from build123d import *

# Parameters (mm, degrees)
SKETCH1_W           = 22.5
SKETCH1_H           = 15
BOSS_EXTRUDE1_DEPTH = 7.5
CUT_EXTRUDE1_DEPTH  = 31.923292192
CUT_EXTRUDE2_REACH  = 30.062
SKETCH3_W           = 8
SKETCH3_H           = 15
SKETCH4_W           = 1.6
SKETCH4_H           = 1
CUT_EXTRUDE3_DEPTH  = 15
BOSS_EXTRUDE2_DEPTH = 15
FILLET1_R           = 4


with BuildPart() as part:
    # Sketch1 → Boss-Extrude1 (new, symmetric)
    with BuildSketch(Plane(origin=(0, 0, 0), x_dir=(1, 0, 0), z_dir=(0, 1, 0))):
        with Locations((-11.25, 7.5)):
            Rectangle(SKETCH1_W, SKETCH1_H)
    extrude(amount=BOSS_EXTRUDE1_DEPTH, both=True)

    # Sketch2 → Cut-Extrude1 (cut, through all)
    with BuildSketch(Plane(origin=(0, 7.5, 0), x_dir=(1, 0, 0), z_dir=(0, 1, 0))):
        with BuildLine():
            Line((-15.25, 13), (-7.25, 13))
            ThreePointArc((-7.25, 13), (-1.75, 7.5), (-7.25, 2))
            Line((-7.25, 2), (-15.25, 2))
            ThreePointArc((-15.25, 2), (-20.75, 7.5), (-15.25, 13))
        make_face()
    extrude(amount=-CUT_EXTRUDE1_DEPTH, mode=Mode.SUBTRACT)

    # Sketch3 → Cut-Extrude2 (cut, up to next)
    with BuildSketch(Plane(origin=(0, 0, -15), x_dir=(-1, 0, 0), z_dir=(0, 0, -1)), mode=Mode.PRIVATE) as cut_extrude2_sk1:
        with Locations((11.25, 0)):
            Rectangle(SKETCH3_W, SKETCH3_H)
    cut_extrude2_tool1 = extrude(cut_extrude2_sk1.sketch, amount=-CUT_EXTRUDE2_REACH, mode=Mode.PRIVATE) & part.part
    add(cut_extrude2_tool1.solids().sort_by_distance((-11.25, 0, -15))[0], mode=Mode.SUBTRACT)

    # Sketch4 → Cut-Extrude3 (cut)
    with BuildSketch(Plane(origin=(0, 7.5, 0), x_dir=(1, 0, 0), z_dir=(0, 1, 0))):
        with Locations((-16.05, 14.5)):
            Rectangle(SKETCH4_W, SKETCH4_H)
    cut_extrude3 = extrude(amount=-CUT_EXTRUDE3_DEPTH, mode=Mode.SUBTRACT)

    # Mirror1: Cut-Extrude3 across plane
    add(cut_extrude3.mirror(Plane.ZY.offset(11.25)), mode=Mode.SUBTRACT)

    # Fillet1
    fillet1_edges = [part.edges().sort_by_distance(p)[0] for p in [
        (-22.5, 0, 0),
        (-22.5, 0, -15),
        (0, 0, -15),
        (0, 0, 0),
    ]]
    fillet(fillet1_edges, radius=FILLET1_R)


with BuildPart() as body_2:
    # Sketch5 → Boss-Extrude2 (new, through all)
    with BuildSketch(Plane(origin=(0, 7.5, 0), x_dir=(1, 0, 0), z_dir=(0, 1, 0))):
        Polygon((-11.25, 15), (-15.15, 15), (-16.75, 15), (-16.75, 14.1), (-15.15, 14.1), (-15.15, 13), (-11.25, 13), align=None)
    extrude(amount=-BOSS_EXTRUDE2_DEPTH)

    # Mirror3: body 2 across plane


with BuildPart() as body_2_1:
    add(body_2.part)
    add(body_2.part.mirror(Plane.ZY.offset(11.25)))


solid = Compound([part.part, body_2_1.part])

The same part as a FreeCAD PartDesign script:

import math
import FreeCAD as App
import Part
import Sketcher

V = App.Vector


def edges_at(feature, points):
    """Names of the edges that pass closest to the given points."""
    edges = feature.Shape.Edges
    near = lambda p: min(range(len(edges)), key=lambda i: edges[i].distToShape(Part.Vertex(*p))[0])
    return sorted({f"Edge{near(p) + 1}" for p in points})

doc = App.newDocument("Part")
body = doc.addObject("PartDesign::Body", "Body")

sketch1 = body.newObject("Sketcher::SketchObject", "Sketch")
sketch1.AttachmentSupport = (doc.getObject("XZ_Plane"), [""])
sketch1.MapMode = "FlatFace"
sketch1.addGeometry([
    Part.LineSegment(V(-22, -15, 0), V(-22, 0, 0)),
    Part.LineSegment(V(-22, 0, 0), V(0, 0, 0)),
    Part.LineSegment(V(0, 0, 0), V(0, -15, 0)),
    Part.LineSegment(V(0, -15, 0), V(-22, -15, 0)),
], False)
sketch1.addConstraint([
    Sketcher.Constraint("Coincident", 0, 2, 1, 1),
    Sketcher.Constraint("Coincident", 1, 2, 2, 1),
    Sketcher.Constraint("Coincident", 2, 2, 3, 1),
    Sketcher.Constraint("Coincident", 3, 2, 0, 1),
    Sketcher.Constraint("Vertical", 0),
    Sketcher.Constraint("Horizontal", 1),
    Sketcher.Constraint("Vertical", 2),
    Sketcher.Constraint("Horizontal", 3),
    Sketcher.Constraint("Coincident", 1, 2, -1, 1),
    Sketcher.Constraint("DistanceY", 0, 1, 0, 2, 15.0),
    Sketcher.Constraint("DistanceX", 1, 1, 1, 2, 22.5),
])
pad1 = body.newObject("PartDesign::Pad", "Pad")
pad1.Profile = sketch1
pad1.Length = 15
pad1.Midplane = True

sketch2 = body.newObject("Sketcher::SketchObject", "Sketch001")
sketch2.AttachmentSupport = (doc.getObject("XZ_Plane"), [""])
sketch2.MapMode = "FlatFace"
sketch2.AttachmentOffset = App.Placement(V(0, 0, -7.5), App.Rotation())
sketch2.addGeometry([
    Part.LineSegment(V(-7, -13, 0), V(-15, -13, 0)),
    Part.ArcOfCircle(Part.Circle(V(-15, -8, 0), V(0, 0, 1), 6), math.radians(90), math.radians(270)),
    Part.LineSegment(V(-15, -2, 0), V(-7, -2, 0)),
    Part.ArcOfCircle(Part.Circle(V(-7, -8, 0), V(0, 0, 1), 6), math.radians(-90), math.radians(90)),
], False)
sketch2.addConstraint([
    Sketcher.Constraint("Tangent", 0, 2, 1, 2),
    Sketcher.Constraint("Tangent", 1, 1, 2, 1),
    Sketcher.Constraint("Tangent", 2, 2, 3, 2),
    Sketcher.Constraint("Tangent", 3, 1, 0, 1),
    Sketcher.Constraint("Horizontal", 0),
    Sketcher.Constraint("Horizontal", 2),
    Sketcher.Constraint("Radius", 1, 5.5),
    Sketcher.Constraint("DistanceX", 0, 2, 0, 1, 8.0),
    Sketcher.Constraint("DistanceY", 0, 2, -1, 1, 13.0),
    Sketcher.Constraint("DistanceX", 1, 3, -1, 1, 15.25),
])
pocket1 = body.newObject("PartDesign::Pocket", "Pocket")
pocket1.Profile = sketch2
pocket1.Type = "ThroughAll"
pocket1.Reversed = True

sketch3 = body.newObject("Sketcher::SketchObject", "Sketch002")
sketch3.AttachmentSupport = (doc.getObject("XY_Plane"), [""])
sketch3.MapMode = "FlatFace"
sketch3.AttachmentOffset = App.Placement(V(0, 0, -15), App.Rotation())
sketch3.addGeometry([
    Part.LineSegment(V(-7, 8, 0), V(-7, -8, 0)),
    Part.LineSegment(V(-7, -8, 0), V(-15, -8, 0)),
    Part.LineSegment(V(-15, -8, 0), V(-15, 8, 0)),
    Part.LineSegment(V(-15, 8, 0), V(-7, 8, 0)),
], False)
sketch3.addConstraint([
    Sketcher.Constraint("Coincident", 0, 2, 1, 1),
    Sketcher.Constraint("Coincident", 1, 2, 2, 1),
    Sketcher.Constraint("Coincident", 2, 2, 3, 1),
    Sketcher.Constraint("Coincident", 3, 2, 0, 1),
    Sketcher.Constraint("Vertical", 0),
    Sketcher.Constraint("Horizontal", 1),
    Sketcher.Constraint("Vertical", 2),
    Sketcher.Constraint("Horizontal", 3),
    Sketcher.Constraint("DistanceX", 1, 2, 1, 1, 8.0),
    Sketcher.Constraint("DistanceY", 0, 2, 0, 1, 15.0),
    Sketcher.Constraint("DistanceY", 0, 2, -1, 1, 7.5),
    Sketcher.Constraint("DistanceX", 0, 2, -1, 1, 7.25),
])
pocket2 = body.newObject("PartDesign::Pocket", "Pocket001")
pocket2.Profile = sketch3
pocket2.Type = "UpToFirst"
pocket2.Reversed = True

sketch4 = body.newObject("Sketcher::SketchObject", "Sketch003")
sketch4.AttachmentSupport = (doc.getObject("XZ_Plane"), [""])
sketch4.MapMode = "FlatFace"
sketch4.AttachmentOffset = App.Placement(V(0, 0, -7.5), App.Rotation())
sketch4.addGeometry([
    Part.LineSegment(V(-16.9, -15, 0), V(-16.9, -14, 0)),
    Part.LineSegment(V(-16.9, -14, 0), V(-15.2, -14, 0)),
    Part.LineSegment(V(-15.2, -14, 0), V(-15.2, -15, 0)),
    Part.LineSegment(V(-15.2, -15, 0), V(-16.9, -15, 0)),
], False)
sketch4.addConstraint([
    Sketcher.Constraint("Coincident", 0, 2, 1, 1),
    Sketcher.Constraint("Coincident", 1, 2, 2, 1),
    Sketcher.Constraint("Coincident", 2, 2, 3, 1),
    Sketcher.Constraint("Coincident", 3, 2, 0, 1),
    Sketcher.Constraint("Vertical", 0),
    Sketcher.Constraint("Horizontal", 1),
    Sketcher.Constraint("Vertical", 2),
    Sketcher.Constraint("Horizontal", 3),
    Sketcher.Constraint("DistanceY", 0, 1, 0, 2, 1.0),
    Sketcher.Constraint("DistanceX", 1, 1, 1, 2, 1.6),
    Sketcher.Constraint("DistanceY", 0, 2, -1, 1, 14.0),
    Sketcher.Constraint("DistanceX", 0, 2, -1, 1, 16.85),
])
pocket3 = body.newObject("PartDesign::Pocket", "Pocket002")
pocket3.Profile = sketch4
pocket3.Length = 15
pocket3.Reversed = True
doc.recompute()

datumplane = body.newObject("PartDesign::Plane", "DatumPlane")
datumplane.AttachmentSupport = (doc.getObject("YZ_Plane"), [""])
datumplane.MapMode = "FlatFace"
datumplane.AttachmentOffset = App.Placement(V(0, 0, -11.25), App.Rotation())
mirrored = body.newObject("PartDesign::Mirrored", "Mirrored")
mirrored.Originals = [pocket3]
mirrored.MirrorPlane = (datumplane, [""])
body.Tip = mirrored
doc.recompute()

fillet = body.newObject("PartDesign::Fillet", "Fillet")
fillet.Base = (mirrored, edges_at(mirrored, [
    (-22.5, 0, 0),
    (-22.5, 0, -15),
    (0, 0, -15),
    (0, 0, 0),
]))
fillet.Radius = 4
body2 = doc.addObject("PartDesign::Body", "Body001")

sketch5 = body2.newObject("Sketcher::SketchObject", "Sketch004")
sketch5.AttachmentSupport = (doc.getObject("XZ_Plane001"), [""])
sketch5.MapMode = "FlatFace"
sketch5.AttachmentOffset = App.Placement(V(0, 0, -7.5), App.Rotation())
sketch5.addGeometry([
    Part.LineSegment(V(-11.2, -15, 0), V(-16.8, -15, 0)),
    Part.LineSegment(V(-16.8, -15, 0), V(-16.8, -14.1, 0)),
    Part.LineSegment(V(-16.8, -14.1, 0), V(-15.2, -14.1, 0)),
    Part.LineSegment(V(-15.2, -14.1, 0), V(-15.2, -13, 0)),
    Part.LineSegment(V(-15.2, -13, 0), V(-11.2, -13, 0)),
    Part.LineSegment(V(-11.2, -13, 0), V(-11.2, -15, 0)),
], False)
sketch5.addConstraint([
    Sketcher.Constraint("Coincident", 0, 2, 1, 1),
    Sketcher.Constraint("Coincident", 1, 2, 2, 1),
    Sketcher.Constraint("Coincident", 2, 2, 3, 1),
    Sketcher.Constraint("Coincident", 3, 2, 4, 1),
    Sketcher.Constraint("Coincident", 4, 2, 5, 1),
    Sketcher.Constraint("Coincident", 5, 2, 0, 1),
    Sketcher.Constraint("Horizontal", 0),
    Sketcher.Constraint("Vertical", 1),
    Sketcher.Constraint("Horizontal", 2),
    Sketcher.Constraint("Vertical", 3),
    Sketcher.Constraint("Horizontal", 4),
    Sketcher.Constraint("Vertical", 5),
    Sketcher.Constraint("DistanceY", 5, 2, 5, 1, 2.0),
    Sketcher.Constraint("DistanceX", 0, 2, 0, 1, 5.5),
    Sketcher.Constraint("DistanceX", 2, 1, 2, 2, 1.6),
    Sketcher.Constraint("DistanceY", 1, 1, 1, 2, 0.9),
    Sketcher.Constraint("DistanceY", 0, 2, -1, 1, 15.0),
    Sketcher.Constraint("DistanceX", 0, 2, -1, 1, 16.75),
])
pad2 = body2.newObject("PartDesign::Pad", "Pad001")
pad2.Profile = sketch5
pad2.Length = 15
body3 = doc.addObject("PartDesign::Body", "Body002")
doc.recompute()

body3.BaseFeature = body2
doc.recompute()

mirroring = doc.addObject("Part::Mirroring", "Mirroring")
mirroring.Source = body2
mirroring.Base = V(-11.25, 0, 0)
mirroring.Normal = V(-1, 0, 0)
body4 = doc.addObject("PartDesign::Body", "Body003")
body4.BaseFeature = mirroring
boolean = body3.newObject("PartDesign::Boolean", "Boolean")
boolean.Type = "Fuse"
boolean.addObjects([body4])
doc.recompute()
mirroring.Visibility = False

doc.recompute()
